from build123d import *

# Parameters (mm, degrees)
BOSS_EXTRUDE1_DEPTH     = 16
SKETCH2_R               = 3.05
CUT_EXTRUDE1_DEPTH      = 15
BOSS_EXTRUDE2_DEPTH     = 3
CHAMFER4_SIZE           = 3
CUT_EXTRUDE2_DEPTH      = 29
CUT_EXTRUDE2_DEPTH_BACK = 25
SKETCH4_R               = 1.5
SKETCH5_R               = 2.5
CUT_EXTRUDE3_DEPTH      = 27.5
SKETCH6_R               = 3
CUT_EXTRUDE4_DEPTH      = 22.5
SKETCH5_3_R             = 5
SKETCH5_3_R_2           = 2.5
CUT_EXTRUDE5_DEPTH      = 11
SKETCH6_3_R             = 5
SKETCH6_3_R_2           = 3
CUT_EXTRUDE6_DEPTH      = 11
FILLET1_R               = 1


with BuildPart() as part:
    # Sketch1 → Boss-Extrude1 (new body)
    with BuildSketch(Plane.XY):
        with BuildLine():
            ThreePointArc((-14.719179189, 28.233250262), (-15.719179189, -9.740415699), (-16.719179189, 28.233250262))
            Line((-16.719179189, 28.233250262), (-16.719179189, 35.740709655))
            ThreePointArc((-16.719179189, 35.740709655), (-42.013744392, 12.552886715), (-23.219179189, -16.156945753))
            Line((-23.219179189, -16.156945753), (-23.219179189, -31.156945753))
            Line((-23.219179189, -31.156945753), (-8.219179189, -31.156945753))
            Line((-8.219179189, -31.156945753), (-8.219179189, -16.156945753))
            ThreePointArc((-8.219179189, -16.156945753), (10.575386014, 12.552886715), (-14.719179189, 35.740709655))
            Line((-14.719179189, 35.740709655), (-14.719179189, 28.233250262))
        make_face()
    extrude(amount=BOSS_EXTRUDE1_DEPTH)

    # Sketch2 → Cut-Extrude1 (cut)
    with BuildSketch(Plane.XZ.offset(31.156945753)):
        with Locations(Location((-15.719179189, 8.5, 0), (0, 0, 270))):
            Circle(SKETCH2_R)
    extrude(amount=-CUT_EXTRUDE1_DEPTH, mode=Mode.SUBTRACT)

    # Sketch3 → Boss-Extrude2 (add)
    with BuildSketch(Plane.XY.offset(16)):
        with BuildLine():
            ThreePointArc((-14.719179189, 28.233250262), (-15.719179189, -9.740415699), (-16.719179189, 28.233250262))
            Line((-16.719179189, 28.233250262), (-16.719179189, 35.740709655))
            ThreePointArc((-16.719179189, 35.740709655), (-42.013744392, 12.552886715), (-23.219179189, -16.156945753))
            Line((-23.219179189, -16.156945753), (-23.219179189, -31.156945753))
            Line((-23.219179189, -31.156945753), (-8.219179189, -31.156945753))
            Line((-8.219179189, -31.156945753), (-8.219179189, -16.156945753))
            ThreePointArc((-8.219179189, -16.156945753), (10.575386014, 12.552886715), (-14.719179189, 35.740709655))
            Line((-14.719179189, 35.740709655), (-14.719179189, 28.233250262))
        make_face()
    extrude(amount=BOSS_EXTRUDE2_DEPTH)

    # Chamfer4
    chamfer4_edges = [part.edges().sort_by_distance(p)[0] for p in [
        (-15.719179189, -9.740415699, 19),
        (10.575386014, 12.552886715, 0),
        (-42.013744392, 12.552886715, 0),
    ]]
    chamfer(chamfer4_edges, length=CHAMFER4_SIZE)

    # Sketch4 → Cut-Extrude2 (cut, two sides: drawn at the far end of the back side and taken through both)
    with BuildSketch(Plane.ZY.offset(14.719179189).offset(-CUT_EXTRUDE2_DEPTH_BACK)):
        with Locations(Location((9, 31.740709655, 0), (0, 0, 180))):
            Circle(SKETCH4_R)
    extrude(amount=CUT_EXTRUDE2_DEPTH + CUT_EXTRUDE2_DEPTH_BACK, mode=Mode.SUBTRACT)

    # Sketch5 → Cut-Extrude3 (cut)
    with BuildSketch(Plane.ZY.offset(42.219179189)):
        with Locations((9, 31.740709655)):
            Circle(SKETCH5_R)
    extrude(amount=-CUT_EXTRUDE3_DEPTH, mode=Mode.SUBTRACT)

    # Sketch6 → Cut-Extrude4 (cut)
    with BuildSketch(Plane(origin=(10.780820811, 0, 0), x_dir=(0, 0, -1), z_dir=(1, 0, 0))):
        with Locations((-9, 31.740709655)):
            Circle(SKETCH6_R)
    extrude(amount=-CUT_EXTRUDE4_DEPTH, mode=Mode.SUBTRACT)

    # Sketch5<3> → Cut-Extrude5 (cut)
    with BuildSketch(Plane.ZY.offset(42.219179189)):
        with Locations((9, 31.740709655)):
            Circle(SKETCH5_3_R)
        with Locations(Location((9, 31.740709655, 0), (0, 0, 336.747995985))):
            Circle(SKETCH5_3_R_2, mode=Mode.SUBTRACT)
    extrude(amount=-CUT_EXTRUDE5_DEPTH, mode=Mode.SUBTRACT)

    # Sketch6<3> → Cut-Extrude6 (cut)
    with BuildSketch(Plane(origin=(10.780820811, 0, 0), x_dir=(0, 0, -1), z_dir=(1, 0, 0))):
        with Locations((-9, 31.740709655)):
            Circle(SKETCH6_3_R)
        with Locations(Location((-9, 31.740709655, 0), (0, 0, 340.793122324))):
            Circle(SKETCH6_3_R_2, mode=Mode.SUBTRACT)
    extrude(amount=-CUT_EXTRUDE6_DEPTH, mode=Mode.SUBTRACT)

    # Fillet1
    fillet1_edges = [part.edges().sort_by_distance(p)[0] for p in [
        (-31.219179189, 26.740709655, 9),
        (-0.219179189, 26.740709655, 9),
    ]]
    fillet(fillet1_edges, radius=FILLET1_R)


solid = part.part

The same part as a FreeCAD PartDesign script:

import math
import FreeCAD as App
import Part
import Sketcher

V = App.Vector
Q = App.Units.Quantity


def edges_at(feature, points):
    """Names of the edges that pass closest to the given points."""
    edges = feature.Shape.Edges
    near = lambda p: min(range(len(edges)), key=lambda i: edges[i].distToShape(Part.Vertex(*p))[0])
    return sorted({f"Edge{near(p) + 1}" for p in points})

doc = App.newDocument("Part")
params = doc.addObject("Spreadsheet::Sheet", "Params")
for row, (alias, value) in enumerate([
    ("sketch1_radius", "19 mm"),
    ("sketch1_radius2", "26.5 mm"),
    ("sketch1_width", "15 mm"),
    ("sketch1_width2", "1 mm"),
    ("pad1_length", "16 mm"),
    ("sketch2_diameter", "6.1 mm"),
    ("pocket1_length", "15 mm"),
    ("sketch3_radius", "19 mm"),
    ("sketch3_radius2", "26.5 mm"),
    ("sketch3_width", "15 mm"),
    ("sketch3_width2", "1 mm"),
    ("pad2_length", "3 mm"),
    ("chamfer_size", "3 mm"),
    ("sketch4_diameter", "3 mm"),
    ("sketch5_diameter", "5 mm"),
    ("pocket3_length", "27.5 mm"),
    ("sketch6_diameter", "6 mm"),
    ("pocket4_length", "22.5 mm"),
    ("sketch7_diameter", "10 mm"),
    ("sketch7_diameter2", "5 mm"),
    ("pocket5_length", "11 mm"),
    ("sketch8_diameter", "10 mm"),
    ("sketch8_diameter2", "6 mm"),
    ("pocket6_length", "11 mm"),
    ("fillet_radius", "1 mm"),
], start=1):
    params.set(f"A{row}", alias)
    params.set(f"B{row}", "=" + value)
    params.setAlias(f"B{row}", alias)

body = doc.addObject("PartDesign::Body", "Body")

sketch1 = body.newObject("Sketcher::SketchObject", "Sketch")
sketch1.AttachmentSupport = (doc.getObject("XY_Plane"), [""])
sketch1.MapMode = "FlatFace"
sketch1.addGeometry(Part.ArcOfCircle(Part.Circle(V(-15.7, 9.3, 0), V(0, 0, 1), 19), math.radians(93), math.radians(447)), False)
sketch1.addGeometry(Part.LineSegment(V(-16.7, 28.2, 0), V(-16.7, 35.7, 0)), False)
sketch1.addGeometry(Part.ArcOfCircle(Part.Circle(V(-15.7, 9.3, 0), V(0, 0, 1), 26.5), math.radians(92), math.radians(254)), False)
sketch1.addGeometry(Part.LineSegment(V(-23.2, -16.2, 0), V(-23.2, -31.2, 0)), False)
sketch1.addGeometry(Part.LineSegment(V(-23.2, -31.2, 0), V(-8.2, -31.2, 0)), False)
sketch1.addGeometry(Part.LineSegment(V(-8.2, -31.2, 0), V(-8.2, -16.2, 0)), False)
sketch1.addGeometry(Part.ArcOfCircle(Part.Circle(V(-15.7, 9.3, 0), V(0, 0, 1), 26.5), math.radians(-74), math.radians(88)), False)
sketch1.addGeometry(Part.LineSegment(V(-14.7, 35.7, 0), V(-14.7, 28.2, 0)), False)
sketch1.addConstraint(Sketcher.Constraint("Coincident", 0, 1, 1, 1))
sketch1.addConstraint(Sketcher.Constraint("Coincident", 1, 2, 2, 1))
sketch1.addConstraint(Sketcher.Constraint("Coincident", 2, 2, 3, 1))
sketch1.addConstraint(Sketcher.Constraint("Coincident", 3, 2, 4, 1))
sketch1.addConstraint(Sketcher.Constraint("Coincident", 4, 2, 5, 1))
sketch1.addConstraint(Sketcher.Constraint("Coincident", 5, 2, 6, 1))
sketch1.addConstraint(Sketcher.Constraint("Coincident", 6, 2, 7, 1))
sketch1.addConstraint(Sketcher.Constraint("Coincident", 7, 2, 0, 2))
sketch1.addConstraint(Sketcher.Constraint("Vertical", 1))
sketch1.addConstraint(Sketcher.Constraint("Vertical", 3))
sketch1.addConstraint(Sketcher.Constraint("Horizontal", 4))
sketch1.addConstraint(Sketcher.Constraint("Vertical", 5))
sketch1.addConstraint(Sketcher.Constraint("Vertical", 7))
sketch1.addConstraint(Sketcher.Constraint("Coincident", 2, 3, 0, 3))
sketch1.addConstraint(Sketcher.Constraint("Coincident", 6, 3, 0, 3))
sketch1.addConstraint(Sketcher.Constraint("Equal", 2, 6))
sketch1.addConstraint(Sketcher.Constraint("Horizontal", 2, 2, 5, 2))
sketch1.addConstraint(Sketcher.Constraint("Horizontal", 1, 2, 6, 2))
sketch1.addConstraint(Sketcher.Constraint("Equal", 4, 3))
sketch1.addConstraint(Sketcher.Constraint("Radius", 0, Q("19 mm")))
sketch1.addConstraint(Sketcher.Constraint("Radius", 2, Q("26.5 mm")))
sketch1.addConstraint(Sketcher.Constraint("DistanceX", 4, 1, 4, 2, Q("15 mm")))
sketch1.addConstraint(Sketcher.Constraint("DistanceX", 0, 1, 0, 3, Q("1 mm")))
sketch1.addConstraint(Sketcher.Constraint("DistanceX", 0, 3, -1, 1, Q("15.719179 mm")))
sketch1.addConstraint(Sketcher.Constraint("DistanceY", -1, 1, 0, 1, Q("28.23325 mm")))
sketch1.setExpression("Constraints[19]", "Params.sketch1_radius")
sketch1.setExpression("Constraints[20]", "Params.sketch1_radius2")
sketch1.setExpression("Constraints[21]", "Params.sketch1_width")
sketch1.setExpression("Constraints[22]", "Params.sketch1_width2")
pad1 = body.newObject("PartDesign::Pad", "Pad")
pad1.Profile = sketch1
pad1.setExpression("Length", "Params.pad1_length")

sketch2 = body.newObject("Sketcher::SketchObject", "Sketch001")
sketch2.AttachmentSupport = (doc.getObject("XZ_Plane"), [""])
sketch2.MapMode = "FlatFace"
sketch2.AttachmentOffset = App.Placement(V(0, 0, 31.156946), App.Rotation())
sketch2.addGeometry(Part.Circle(V(-15.7, 8.5, 0), V(0, 0, 1), 3), False)
sketch2.addConstraint(Sketcher.Constraint("Diameter", 0, Q("6.1 mm")))
sketch2.addConstraint(Sketcher.Constraint("DistanceY", -1, 1, 0, 3, Q("8.5 mm")))
sketch2.addConstraint(Sketcher.Constraint("DistanceX", 0, 3, -1, 1, Q("15.719179 mm")))
sketch2.setExpression("Constraints[0]", "Params.sketch2_diameter")
pocket1 = body.newObject("PartDesign::Pocket", "Pocket")
pocket1.Profile = sketch2
pocket1.setExpression("Length", "Params.pocket1_length")

sketch3 = body.newObject("Sketcher::SketchObject", "Sketch002")
sketch3.AttachmentSupport = (doc.getObject("XY_Plane"), [""])
sketch3.MapMode = "FlatFace"
sketch3.AttachmentOffset = App.Placement(V(0, 0, 16), App.Rotation())
sketch3.addGeometry(Part.ArcOfCircle(Part.Circle(V(-15.7, 9.3, 0), V(0, 0, 1), 19), math.radians(93), math.radians(447)), False)
sketch3.addGeometry(Part.LineSegment(V(-16.7, 28.2, 0), V(-16.7, 35.7, 0)), False)
sketch3.addGeometry(Part.ArcOfCircle(Part.Circle(V(-15.7, 9.3, 0), V(0, 0, 1), 26.5), math.radians(92), math.radians(254)), False)
sketch3.addGeometry(Part.LineSegment(V(-23.2, -16.2, 0), V(-23.2, -31.2, 0)), False)
sketch3.addGeometry(Part.LineSegment(V(-23.2, -31.2, 0), V(-8.2, -31.2, 0)), False)
sketch3.addGeometry(Part.LineSegment(V(-8.2, -31.2, 0), V(-8.2, -16.2, 0)), False)
sketch3.addGeometry(Part.ArcOfCircle(Part.Circle(V(-15.7, 9.3, 0), V(0, 0, 1), 26.5), math.radians(-74), math.radians(88)), False)
sketch3.addGeometry(Part.LineSegment(V(-14.7, 35.7, 0), V(-14.7, 28.2, 0)), False)
sketch3.addConstraint(Sketcher.Constraint("Coincident", 0, 1, 1, 1))
sketch3.addConstraint(Sketcher.Constraint("Coincident", 1, 2, 2, 1))
sketch3.addConstraint(Sketcher.Constraint("Coincident", 2, 2, 3, 1))
sketch3.addConstraint(Sketcher.Constraint("Coincident", 3, 2, 4, 1))
sketch3.addConstraint(Sketcher.Constraint("Coincident", 4, 2, 5, 1))
sketch3.addConstraint(Sketcher.Constraint("Coincident", 5, 2, 6, 1))
sketch3.addConstraint(Sketcher.Constraint("Coincident", 6, 2, 7, 1))
sketch3.addConstraint(Sketcher.Constraint("Coincident", 7, 2, 0, 2))
sketch3.addConstraint(Sketcher.Constraint("Vertical", 1))
sketch3.addConstraint(Sketcher.Constraint("Vertical", 3))
sketch3.addConstraint(Sketcher.Constraint("Horizontal", 4))
sketch3.addConstraint(Sketcher.Constraint("Vertical", 5))
sketch3.addConstraint(Sketcher.Constraint("Vertical", 7))
sketch3.addConstraint(Sketcher.Constraint("Coincident", 2, 3, 0, 3))
sketch3.addConstraint(Sketcher.Constraint("Coincident", 6, 3, 0, 3))
sketch3.addConstraint(Sketcher.Constraint("Equal", 2, 6))
sketch3.addConstraint(Sketcher.Constraint("Horizontal", 2, 2, 5, 2))
sketch3.addConstraint(Sketcher.Constraint("Horizontal", 1, 2, 6, 2))
sketch3.addConstraint(Sketcher.Constraint("Equal", 4, 3))
sketch3.addConstraint(Sketcher.Constraint("Radius", 0, Q("19 mm")))
sketch3.addConstraint(Sketcher.Constraint("Radius", 2, Q("26.5 mm")))
sketch3.addConstraint(Sketcher.Constraint("DistanceX", 4, 1, 4, 2, Q("15 mm")))
sketch3.addConstraint(Sketcher.Constraint("DistanceX", 0, 1, 0, 3, Q("1 mm")))
sketch3.addConstraint(Sketcher.Constraint("DistanceX", 0, 3, -1, 1, Q("15.719179 mm")))
sketch3.addConstraint(Sketcher.Constraint("DistanceY", -1, 1, 0, 1, Q("28.23325 mm")))
sketch3.setExpression("Constraints[19]", "Params.sketch3_radius")
sketch3.setExpression("Constraints[20]", "Params.sketch3_radius2")
sketch3.setExpression("Constraints[21]", "Params.sketch3_width")
sketch3.setExpression("Constraints[22]", "Params.sketch3_width2")
pad2 = body.newObject("PartDesign::Pad", "Pad001")
pad2.Profile = sketch3
pad2.setExpression("Length", "Params.pad2_length")
doc.recompute()

chamfer = body.newObject("PartDesign::Chamfer", "Chamfer")
chamfer.Base = (pad2, edges_at(pad2, [(-15.719, -9.74, 19), (10.575, 12.553, 0), (-42.014, 12.553, 0)]))
chamfer.setExpression("Size", "Params.chamfer_size")

sketch4 = body.newObject("Sketcher::SketchObject", "Sketch003")
sketch4.AttachmentSupport = (doc.getObject("YZ_Plane"), [""])
sketch4.MapMode = "FlatFace"
sketch4.AttachmentOffset = App.Placement(V(0, 0, -14.719179), App.Rotation())
sketch4.addGeometry(Part.Circle(V(31.7, 9, 0), V(0, 0, 1), 1.5), False)
sketch4.addConstraint(Sketcher.Constraint("Diameter", 0, Q("3 mm")))
sketch4.addConstraint(Sketcher.Constraint("DistanceY", -1, 1, 0, 3, Q("9 mm")))
sketch4.addConstraint(Sketcher.Constraint("DistanceX", -1, 1, 0, 3, Q("31.74071 mm")))
sketch4.setExpression("Constraints[0]", "Params.sketch4_diameter")
pocket2 = body.newObject("PartDesign::Pocket", "Pocket001")
pocket2.Profile = sketch4
pocket2.Type = "ThroughAll"
pocket2.Midplane = True

sketch5 = body.newObject("Sketcher::SketchObject", "Sketch004")
sketch5.AttachmentSupport = (doc.getObject("YZ_Plane"), [""])
sketch5.MapMode = "FlatFace"
sketch5.AttachmentOffset = App.Placement(V(0, 0, -42.219179), App.Rotation())
sketch5.addGeometry(Part.Circle(V(31.7, 9, 0), V(0, 0, 1), 2.5), False)
sketch5.addConstraint(Sketcher.Constraint("Diameter", 0, Q("5 mm")))
sketch5.addConstraint(Sketcher.Constraint("DistanceY", -1, 1, 0, 3, Q("9 mm")))
sketch5.addConstraint(Sketcher.Constraint("DistanceX", -1, 1, 0, 3, Q("31.74071 mm")))
sketch5.setExpression("Constraints[0]", "Params.sketch5_diameter")
pocket3 = body.newObject("PartDesign::Pocket", "Pocket002")
pocket3.Profile = sketch5
pocket3.setExpression("Length", "Params.pocket3_length")
pocket3.Reversed = True

sketch6 = body.newObject("Sketcher::SketchObject", "Sketch005")
sketch6.AttachmentSupport = (doc.getObject("YZ_Plane"), [""])
sketch6.MapMode = "FlatFace"
sketch6.AttachmentOffset = App.Placement(V(0, 0, 10.780821), App.Rotation())
sketch6.addGeometry(Part.Circle(V(31.7, 9, 0), V(0, 0, 1), 3), False)
sketch6.addConstraint(Sketcher.Constraint("Diameter", 0, Q("6 mm")))
sketch6.addConstraint(Sketcher.Constraint("DistanceY", -1, 1, 0, 3, Q("9 mm")))
sketch6.addConstraint(Sketcher.Constraint("DistanceX", -1, 1, 0, 3, Q("31.74071 mm")))
sketch6.setExpression("Constraints[0]", "Params.sketch6_diameter")
pocket4 = body.newObject("PartDesign::Pocket", "Pocket003")
pocket4.Profile = sketch6
pocket4.setExpression("Length", "Params.pocket4_length")

sketch7 = body.newObject("Sketcher::SketchObject", "Sketch006")
sketch7.AttachmentSupport = (doc.getObject("YZ_Plane"), [""])
sketch7.MapMode = "FlatFace"
sketch7.AttachmentOffset = App.Placement(V(0, 0, -42.219179), App.Rotation())
sketch7.addGeometry(Part.Circle(V(31.7, 9, 0), V(0, 0, 1), 5), False)
sketch7.addGeometry(Part.Circle(V(31.7, 9, 0), V(0, 0, 1), 2.5), False)
sketch7.addConstraint(Sketcher.Constraint("Coincident", 1, 3, 0, 3))
sketch7.addConstraint(Sketcher.Constraint("Diameter", 0, Q("10 mm")))
sketch7.addConstraint(Sketcher.Constraint("Diameter", 1, Q("5 mm")))
sketch7.addConstraint(Sketcher.Constraint("DistanceY", -1, 1, 0, 3, Q("9 mm")))
sketch7.addConstraint(Sketcher.Constraint("DistanceX", -1, 1, 0, 3, Q("31.74071 mm")))
sketch7.setExpression("Constraints[1]", "Params.sketch7_diameter")
sketch7.setExpression("Constraints[2]", "Params.sketch7_diameter2")
pocket5 = body.newObject("PartDesign::Pocket", "Pocket004")
pocket5.Profile = sketch7
pocket5.setExpression("Length", "Params.pocket5_length")
pocket5.Reversed = True

sketch8 = body.newObject("Sketcher::SketchObject", "Sketch007")
sketch8.AttachmentSupport = (doc.getObject("YZ_Plane"), [""])
sketch8.MapMode = "FlatFace"
sketch8.AttachmentOffset = App.Placement(V(0, 0, 10.780821), App.Rotation())
sketch8.addGeometry(Part.Circle(V(31.7, 9, 0), V(0, 0, 1), 5), False)
sketch8.addGeometry(Part.Circle(V(31.7, 9, 0), V(0, 0, 1), 3), False)
sketch8.addConstraint(Sketcher.Constraint("Coincident", 1, 3, 0, 3))
sketch8.addConstraint(Sketcher.Constraint("Diameter", 0, Q("10 mm")))
sketch8.addConstraint(Sketcher.Constraint("Diameter", 1, Q("6 mm")))
sketch8.addConstraint(Sketcher.Constraint("DistanceY", -1, 1, 0, 3, Q("9 mm")))
sketch8.addConstraint(Sketcher.Constraint("DistanceX", -1, 1, 0, 3, Q("31.74071 mm")))
sketch8.setExpression("Constraints[1]", "Params.sketch8_diameter")
sketch8.setExpression("Constraints[2]", "Params.sketch8_diameter2")
pocket6 = body.newObject("PartDesign::Pocket", "Pocket005")
pocket6.Profile = sketch8
pocket6.setExpression("Length", "Params.pocket6_length")
doc.recompute()

fillet = body.newObject("PartDesign::Fillet", "Fillet")
fillet.Base = (pocket6, edges_at(pocket6, [(-31.219, 26.741, 9), (-0.219, 26.741, 9)]))
fillet.setExpression("Radius", "Params.fillet_radius")

doc.recompute()
